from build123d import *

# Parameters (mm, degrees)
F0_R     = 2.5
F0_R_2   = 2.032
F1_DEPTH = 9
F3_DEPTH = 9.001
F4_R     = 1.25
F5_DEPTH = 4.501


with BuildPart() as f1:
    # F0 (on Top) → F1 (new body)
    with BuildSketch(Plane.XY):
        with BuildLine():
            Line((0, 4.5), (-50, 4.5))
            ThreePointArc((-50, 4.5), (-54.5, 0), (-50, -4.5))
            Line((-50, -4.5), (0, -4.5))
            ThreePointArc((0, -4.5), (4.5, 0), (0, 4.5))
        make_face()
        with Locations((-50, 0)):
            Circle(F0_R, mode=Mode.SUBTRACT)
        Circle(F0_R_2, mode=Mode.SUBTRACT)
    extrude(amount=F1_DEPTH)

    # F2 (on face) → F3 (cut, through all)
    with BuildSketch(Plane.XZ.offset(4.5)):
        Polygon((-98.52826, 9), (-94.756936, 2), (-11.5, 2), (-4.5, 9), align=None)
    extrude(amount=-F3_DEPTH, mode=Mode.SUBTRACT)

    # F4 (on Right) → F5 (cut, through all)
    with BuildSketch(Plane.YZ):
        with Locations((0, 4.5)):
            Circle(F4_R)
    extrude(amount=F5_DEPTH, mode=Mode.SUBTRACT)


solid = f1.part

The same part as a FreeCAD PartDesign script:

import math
import FreeCAD as App
import Part
import Sketcher
Q = App.Units.Quantity

doc = App.newDocument("Part")
body = doc.addObject("PartDesign::Body", "Body")

sketch1 = body.newObject("Sketcher::SketchObject", "Sketch")
sketch1.AttachmentSupport = (doc.getObject("XY_Plane"), [""])
sketch1.MapMode = "FlatFace"
sketch1.addGeometry(Part.LineSegment(App.Vector(0, 4.5, 0), App.Vector(-50, 4.5, 0)), False)
sketch1.addGeometry(Part.ArcOfCircle(Part.Circle(App.Vector(-50, 0, 0), App.Vector(0, 0, 1), 4.5), math.radians(90), math.radians(270)), False)
sketch1.addGeometry(Part.LineSegment(App.Vector(-50, -4.5, 0), App.Vector(0, -4.5, 0)), False)
sketch1.addGeometry(Part.ArcOfCircle(Part.Circle(App.Vector(0, 0, 0), App.Vector(0, 0, 1), 4.5), math.radians(-90), math.radians(90)), False)
sketch1.addGeometry(Part.Circle(App.Vector(-50, 0, 0), App.Vector(0, 0, 1), 2.5), False)
sketch1.addGeometry(Part.Circle(App.Vector(0, 0, 0), App.Vector(0, 0, 1), 2), False)
sketch1.addConstraint(Sketcher.Constraint("Tangent", 0, 2, 1, 1))
sketch1.addConstraint(Sketcher.Constraint("Tangent", 1, 2, 2, 1))
sketch1.addConstraint(Sketcher.Constraint("Tangent", 2, 2, 3, 1))
sketch1.addConstraint(Sketcher.Constraint("Tangent", 3, 2, 0, 1))
sketch1.addConstraint(Sketcher.Constraint("Horizontal", 0))
sketch1.addConstraint(Sketcher.Constraint("Horizontal", 2))
sketch1.addConstraint(Sketcher.Constraint("Coincident", 3, 3, -1, 1))
sketch1.addConstraint(Sketcher.Constraint("Coincident", 5, 3, -1, 1))
sketch1.addConstraint(Sketcher.Constraint("Coincident", 4, 3, 1, 3))
sketch1.addConstraint(Sketcher.Constraint("Diameter", 4, Q("5 mm")))
sketch1.addConstraint(Sketcher.Constraint("Radius", 1, Q("4.5 mm")))
sketch1.addConstraint(Sketcher.Constraint("DistanceX", 0, 2, 0, 1, Q("50 mm")))
sketch1.addConstraint(Sketcher.Constraint("Diameter", 5, Q("4.064 mm")))
pad1 = body.newObject("PartDesign::Pad", "Pad")
pad1.Profile = sketch1
pad1.Length = 9

sketch2 = body.newObject("Sketcher::SketchObject", "Sketch001")
sketch2.AttachmentSupport = (doc.getObject("XZ_Plane"), [""])
sketch2.MapMode = "FlatFace"
sketch2.AttachmentOffset = App.Placement(App.Vector(0, 0, 4.5), App.Rotation())
sketch2.addGeometry(Part.LineSegment(App.Vector(-99, 9, 0), App.Vector(-95, 2, 0)), False)
sketch2.addGeometry(Part.LineSegment(App.Vector(-95, 2, 0), App.Vector(-12, 2, 0)), False)
sketch2.addGeometry(Part.LineSegment(App.Vector(-12, 2, 0), App.Vector(-4, 9, 0)), False)
sketch2.addGeometry(Part.LineSegment(App.Vector(-4, 9, 0), App.Vector(-99, 9, 0)), False)
sketch2.addConstraint(Sketcher.Constraint("Coincident", 0, 2, 1, 1))
sketch2.addConstraint(Sketcher.Constraint("Coincident", 1, 2, 2, 1))
sketch2.addConstraint(Sketcher.Constraint("Coincident", 2, 2, 3, 1))
sketch2.addConstraint(Sketcher.Constraint("Coincident", 3, 2, 0, 1))
sketch2.addConstraint(Sketcher.Constraint("Horizontal", 1))
sketch2.addConstraint(Sketcher.Constraint("Horizontal", 3))
sketch2.addConstraint(Sketcher.Constraint("Angle", 2, Q("45 deg")))
sketch2.addConstraint(Sketcher.Constraint("DistanceY", -1, 1, 0, 2, Q("2 mm")))
sketch2.addConstraint(Sketcher.Constraint("DistanceY", -1, 1, 2, 2, Q("9 mm")))
sketch2.addConstraint(Sketcher.Constraint("DistanceX", 1, 2, -1, 1, Q("11.5 mm")))
sketch2.addConstraint(Sketcher.Constraint("DistanceX", 3, 2, 3, 1, Q("94.02826 mm")))
sketch2.addConstraint(Sketcher.Constraint("Distance", 0, Q("7.951282 mm")))
pocket1 = body.newObject("PartDesign::Pocket", "Pocket")
pocket1.Profile = sketch2
pocket1.Type = "ThroughAll"

sketch3 = body.newObject("Sketcher::SketchObject", "Sketch002")
sketch3.AttachmentSupport = (doc.getObject("YZ_Plane"), [""])
sketch3.MapMode = "FlatFace"
sketch3.addGeometry(Part.Circle(App.Vector(0, 4.5, 0), App.Vector(0, 0, 1), 1.2), False)
sketch3.addConstraint(Sketcher.Constraint("PointOnObject", 0, 3, -2))
sketch3.addConstraint(Sketcher.Constraint("Diameter", 0, Q("2.5 mm")))
sketch3.addConstraint(Sketcher.Constraint("DistanceY", -1, 1, 0, 3, Q("4.5 mm")))
pocket2 = body.newObject("PartDesign::Pocket", "Pocket001")
pocket2.Profile = sketch3
pocket2.Type = "ThroughAll"
pocket2.Reversed = True

doc.recompute()
